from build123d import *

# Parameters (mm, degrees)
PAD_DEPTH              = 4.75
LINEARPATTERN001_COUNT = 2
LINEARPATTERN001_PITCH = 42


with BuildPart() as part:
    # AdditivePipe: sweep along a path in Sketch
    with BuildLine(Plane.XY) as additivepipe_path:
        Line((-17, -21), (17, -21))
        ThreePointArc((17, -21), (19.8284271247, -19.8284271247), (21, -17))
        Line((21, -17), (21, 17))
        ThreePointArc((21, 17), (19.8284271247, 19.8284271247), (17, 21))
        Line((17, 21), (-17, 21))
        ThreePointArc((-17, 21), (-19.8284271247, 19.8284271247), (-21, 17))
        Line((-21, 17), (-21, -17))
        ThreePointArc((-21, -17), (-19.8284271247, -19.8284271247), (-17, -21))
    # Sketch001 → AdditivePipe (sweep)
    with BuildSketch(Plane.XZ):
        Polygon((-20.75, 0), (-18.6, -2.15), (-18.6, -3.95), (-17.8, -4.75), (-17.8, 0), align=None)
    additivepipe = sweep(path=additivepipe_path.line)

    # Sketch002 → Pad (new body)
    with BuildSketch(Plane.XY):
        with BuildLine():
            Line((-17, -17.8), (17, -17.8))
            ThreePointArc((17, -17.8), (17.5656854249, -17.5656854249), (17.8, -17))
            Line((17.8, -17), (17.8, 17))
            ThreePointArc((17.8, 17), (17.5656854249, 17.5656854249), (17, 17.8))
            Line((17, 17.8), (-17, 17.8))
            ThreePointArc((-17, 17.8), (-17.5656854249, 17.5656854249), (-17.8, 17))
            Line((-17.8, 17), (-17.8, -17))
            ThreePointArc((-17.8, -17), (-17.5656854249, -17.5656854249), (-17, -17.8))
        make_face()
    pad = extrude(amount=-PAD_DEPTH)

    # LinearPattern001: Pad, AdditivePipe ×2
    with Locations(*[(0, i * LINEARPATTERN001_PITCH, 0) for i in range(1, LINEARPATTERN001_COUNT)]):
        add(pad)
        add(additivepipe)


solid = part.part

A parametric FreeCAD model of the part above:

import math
import FreeCAD as App
import Part
import Sketcher
from FreeCAD import Vector
Q = App.Units.Quantity


def add_polygon(sketch, points):
    """Adds a closed chain of lines whose ends are joined by coincident constraints."""
    first, n = sketch.GeometryCount, len(points)
    for a, b in zip(points, points[1:] + points[:1]):
        sketch.addGeometry(Part.LineSegment(App.Vector(*a, 0), App.Vector(*b, 0)), False)
    for i in range(n):
        sketch.addConstraint(Sketcher.Constraint("Coincident", first + i, 2, first + (i + 1) % n, 1))

doc = App.newDocument("Part")
body = doc.addObject("PartDesign::Body", "Body")
body.AllowCompound = True

# Sketch on XZ plane
sketch1 = doc.addObject("Sketcher::SketchObject", "Sketch")
body.addObject(sketch1)
sketch1.AttachmentSupport = (doc.XZ_Plane, [""])
sketch1.MapMode = "FlatFace"
add_polygon(sketch1, [(-20.8, 0), (-18.6, -2.1), (-18.6, -4), (-17.8, -4.8), (-17.8, 0)])  # lines 0-4
sketch1.addConstraint([
    Sketcher.Constraint("Vertical", 1),
    Sketcher.Constraint("Vertical", 3),
    Sketcher.Constraint("Horizontal", 4),
    Sketcher.Constraint("PointOnObject", 3, 2, -1),
    Sketcher.Constraint("Parallel", 0, 2),
    Sketcher.Constraint("Angle", 0, Q("-45 deg")),
    Sketcher.Constraint("DistanceY", 1, 2, 1, 1, 1.8),
    Sketcher.Constraint("DistanceX", 4, 2, 4, 1, 2.95),
    Sketcher.Constraint("DistanceX", 0, 2, -1, 1, 18.6),
    Sketcher.Constraint("DistanceX", 2, 2, -1, 1, 17.8),
])

# Sketch on XY plane
sketch2 = doc.addObject("Sketcher::SketchObject", "Sketch001")
body.addObject(sketch2)
sketch2.AttachmentSupport = (doc.XY_Plane, [""])
sketch2.MapMode = "FlatFace"
sketch2.addGeometry([
    Part.LineSegment(Vector(-17, -21, 0), Vector(17, -21, 0)),  # 0
    Part.ArcOfCircle(Part.Circle(Vector(17, -17, 0), Vector(0, 0, 1), 4), math.radians(-90), math.radians(0)),  # 1
    Part.LineSegment(Vector(21, -17, 0), Vector(21, 17, 0)),  # 2
    Part.ArcOfCircle(Part.Circle(Vector(17, 17, 0), Vector(0, 0, 1), 4), math.radians(0), math.radians(90)),  # 3
    Part.LineSegment(Vector(17, 21, 0), Vector(-17, 21, 0)),  # 4
    Part.ArcOfCircle(Part.Circle(Vector(-17, 17, 0), Vector(0, 0, 1), 4), math.radians(90), math.radians(180)),  # 5
    Part.LineSegment(Vector(-21, 17, 0), Vector(-21, -17, 0)),  # 6
    Part.ArcOfCircle(Part.Circle(Vector(-17, -17, 0), Vector(0, 0, 1), 4), math.radians(180), math.radians(270)),  # 7
], False)
sketch2.addConstraint([
    Sketcher.Constraint("Tangent", 0, 2, 1, 1),
    Sketcher.Constraint("Tangent", 1, 2, 2, 1),
    Sketcher.Constraint("Tangent", 2, 2, 3, 1),
    Sketcher.Constraint("Tangent", 3, 2, 4, 1),
    Sketcher.Constraint("Tangent", 4, 2, 5, 1),
    Sketcher.Constraint("Tangent", 5, 2, 6, 1),
    Sketcher.Constraint("Tangent", 6, 2, 7, 1),
    Sketcher.Constraint("Tangent", 7, 2, 0, 1),
    Sketcher.Constraint("Horizontal", 0),
    Sketcher.Constraint("Vertical", 2),
    Sketcher.Constraint("Horizontal", 4),
    Sketcher.Constraint("Vertical", 6),
    Sketcher.Constraint("Equal", 1, 3),
    Sketcher.Constraint("Equal", 3, 5),
    Sketcher.Constraint("Equal", 5, 7),
    Sketcher.Constraint("Symmetric", 1, 3, 5, 3, -1, 1),
    Sketcher.Constraint("Equal", 4, 2),
    Sketcher.Constraint("Radius", 1, 4.0),
    Sketcher.Constraint("DistanceX", 0, 1, 0, 2, 34.0),
])
doc.recompute()

additivepipe = doc.addObject("PartDesign::AdditivePipe", "AdditivePipe")
body.addObject(additivepipe)
additivepipe.Profile = sketch1
additivepipe.Spine = (sketch2, ["Edge1", "Edge2", "Edge3", "Edge4", "Edge5", "Edge6", "Edge7", "Edge8"])

# Sketch on XY plane
sketch3 = doc.addObject("Sketcher::SketchObject", "Sketch002")
body.addObject(sketch3)
sketch3.AttachmentSupport = (doc.XY_Plane, [""])
sketch3.MapMode = "FlatFace"
sketch3.addGeometry([
    Part.LineSegment(Vector(-17, -17.8, 0), Vector(17, -17.8, 0)),  # 0
    Part.ArcOfCircle(Part.Circle(Vector(17, -17, 0), Vector(0, 0, 1), 0.8), math.radians(-90), math.radians(0)),  # 1
    Part.LineSegment(Vector(17.8, -17, 0), Vector(17.8, 17, 0)),  # 2
    Part.ArcOfCircle(Part.Circle(Vector(17, 17, 0), Vector(0, 0, 1), 0.8), math.radians(0), math.radians(90)),  # 3
    Part.LineSegment(Vector(17, 17.8, 0), Vector(-17, 17.8, 0)),  # 4
    Part.ArcOfCircle(Part.Circle(Vector(-17, 17, 0), Vector(0, 0, 1), 0.8), math.radians(90), math.radians(180)),  # 5
    Part.LineSegment(Vector(-17.8, 17, 0), Vector(-17.8, -17, 0)),  # 6
    Part.ArcOfCircle(Part.Circle(Vector(-17, -17, 0), Vector(0, 0, 1), 0.8), math.radians(180), math.radians(270)),  # 7
], False)
sketch3.addConstraint([
    Sketcher.Constraint("Tangent", 0, 2, 1, 1),
    Sketcher.Constraint("Tangent", 1, 2, 2, 1),
    Sketcher.Constraint("Tangent", 2, 2, 3, 1),
    Sketcher.Constraint("Tangent", 3, 2, 4, 1),
    Sketcher.Constraint("Tangent", 4, 2, 5, 1),
    Sketcher.Constraint("Tangent", 5, 2, 6, 1),
    Sketcher.Constraint("Tangent", 6, 2, 7, 1),
    Sketcher.Constraint("Tangent", 7, 2, 0, 1),
    Sketcher.Constraint("Horizontal", 0),
    Sketcher.Constraint("Vertical", 2),
    Sketcher.Constraint("Horizontal", 4),
    Sketcher.Constraint("Vertical", 6),
    Sketcher.Constraint("Equal", 1, 3),
    Sketcher.Constraint("Equal", 3, 5),
    Sketcher.Constraint("Equal", 5, 7),
    Sketcher.Constraint("Symmetric", 1, 3, 5, 3, -1, 1),
    Sketcher.Constraint("Equal", 4, 2),
    Sketcher.Constraint("Radius", 1, 0.8),
    Sketcher.Constraint("DistanceX", 0, 1, 0, 2, 34.0),
])
pad1 = doc.addObject("PartDesign::Pad", "Pad")
body.addObject(pad1)
pad1.Profile = sketch3
pad1.Length = 4.75
pad1.Reversed = True
doc.recompute()

linearpattern = doc.addObject("PartDesign::LinearPattern", "LinearPattern")
body.addObject(linearpattern)
linearpattern.Originals = [pad1, additivepipe]
linearpattern.Direction = (doc.Y_Axis, [""])
linearpattern.Mode = "offset"
linearpattern.Offset = 42
linearpattern.Occurrences = 2
body.Tip = linearpattern

doc.recompute()
